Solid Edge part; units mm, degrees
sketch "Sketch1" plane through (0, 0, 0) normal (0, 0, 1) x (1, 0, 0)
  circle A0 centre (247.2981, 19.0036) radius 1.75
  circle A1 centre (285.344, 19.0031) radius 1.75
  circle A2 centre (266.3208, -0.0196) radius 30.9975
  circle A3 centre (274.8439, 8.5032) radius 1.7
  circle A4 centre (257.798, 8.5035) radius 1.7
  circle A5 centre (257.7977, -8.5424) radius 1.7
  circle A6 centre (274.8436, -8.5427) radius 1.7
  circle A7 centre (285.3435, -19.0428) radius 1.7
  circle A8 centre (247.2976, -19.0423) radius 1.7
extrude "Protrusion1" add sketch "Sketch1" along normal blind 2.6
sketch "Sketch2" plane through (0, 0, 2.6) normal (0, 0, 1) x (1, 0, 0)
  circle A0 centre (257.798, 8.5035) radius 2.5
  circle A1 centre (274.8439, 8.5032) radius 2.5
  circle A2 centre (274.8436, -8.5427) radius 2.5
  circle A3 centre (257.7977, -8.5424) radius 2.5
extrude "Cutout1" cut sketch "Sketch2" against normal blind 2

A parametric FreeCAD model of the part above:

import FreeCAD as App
import Part
import Sketcher
from FreeCAD import Vector

doc = App.newDocument("Part")
body = doc.addObject("PartDesign::Body", "Body")

# Sketch on XY plane
sketch1 = body.newObject("Sketcher::SketchObject", "Sketch")
sketch1.AttachmentSupport = (doc.getObject("XY_Plane"), [""])
sketch1.MapMode = "FlatFace"
sketch1.addGeometry([
    Part.Circle(Vector(266.3, 0, 0), Vector(0, 0, 1), 31),  # 0
    Part.Circle(Vector(247.3, -19, 0), Vector(0, 0, 1), 1.7),  # 1
    Part.Circle(Vector(257.8, -8.5, 0), Vector(0, 0, 1), 1.7),  # 2
    Part.Circle(Vector(285.3, -19, 0), Vector(0, 0, 1), 1.7),  # 3
    Part.Circle(Vector(274.8, -8.5, 0), Vector(0, 0, 1), 1.7),  # 4
    Part.Circle(Vector(257.8, 8.5, 0), Vector(0, 0, 1), 1.7),  # 5
    Part.Circle(Vector(247.3, 19, 0), Vector(0, 0, 1), 1.8),  # 6
    Part.Circle(Vector(274.8, 8.5, 0), Vector(0, 0, 1), 1.7),  # 7
    Part.Circle(Vector(285.3, 19, 0), Vector(0, 0, 1), 1.8),  # 8
], False)
sketch1.addConstraint([
    Sketcher.Constraint("Equal", 1, 2),
    Sketcher.Constraint("Equal", 2, 3),
    Sketcher.Constraint("Equal", 3, 4),
    Sketcher.Constraint("Equal", 4, 5),
    Sketcher.Constraint("Equal", 5, 7),
    Sketcher.Constraint("Equal", 6, 8),
    Sketcher.Constraint("Diameter", 1, 3.4),
    Sketcher.Constraint("Diameter", 6, 3.5),
    Sketcher.Constraint("Diameter", 0, 61.995),
    Sketcher.Constraint("DistanceX", 1, 3, 2, 3, 10.5),
    Sketcher.Constraint("DistanceY", 1, 3, 2, 3, 10.5),
    Sketcher.Constraint("DistanceX", 4, 3, 3, 3, 10.5),
    Sketcher.Constraint("DistanceY", 3, 3, 4, 3, 10.5),
    Sketcher.Constraint("DistanceX", 6, 3, 5, 3, 10.5),
    Sketcher.Constraint("DistanceY", 5, 3, 6, 3, 10.5),
    Sketcher.Constraint("DistanceX", 7, 3, 8, 3, 10.5),
    Sketcher.Constraint("DistanceY", 7, 3, 8, 3, 10.5),
    Sketcher.Constraint("DistanceX", -1, 1, 5, 3, 257.798),
    Sketcher.Constraint("DistanceX", -1, 1, 7, 3, 274.844),
    Sketcher.Constraint("DistanceY", -1, 1, 8, 3, 19.003),
    Sketcher.Constraint("DistanceX", 2, 3, 0, 3, 8.523),
    Sketcher.Constraint("DistanceX", 1, 3, 3, 3, 38.046),
    Sketcher.Constraint("DistanceY", 4, 3, 0, 3, 8.523),
    Sketcher.Constraint("DistanceY", 0, 3, 5, 3, 8.523),
    Sketcher.Constraint("DistanceY", 2, 3, 5, 3, 17.046),
    Sketcher.Constraint("DistanceX", 0, 3, 7, 3, 8.523),
    Sketcher.Constraint("DistanceY", 4, 3, 7, 3, 17.046),
])
pad1 = body.newObject("PartDesign::Pad", "Pad")
pad1.Profile = sketch1
pad1.Length = 2.6

# Sketch on XY plane
sketch2 = body.newObject("Sketcher::SketchObject", "Sketch001")
sketch2.AttachmentSupport = (doc.getObject("XY_Plane"), [""])
sketch2.MapMode = "FlatFace"
sketch2.AttachmentOffset = App.Placement(Vector(0, 0, 2.6), App.Rotation())
sketch2.addGeometry([
    Part.Circle(Vector(257.8, 8.5, 0), Vector(0, 0, 1), 2.5),
    Part.Circle(Vector(274.8, 8.5, 0), Vector(0, 0, 1), 2.5),
    Part.Circle(Vector(274.8, -8.5, 0), Vector(0, 0, 1), 2.5),
    Part.Circle(Vector(257.8, -8.5, 0), Vector(0, 0, 1), 2.5),
], False)
sketch2.addConstraint([
    Sketcher.Constraint("Equal", 0, 1),
    Sketcher.Constraint("Equal", 1, 2),
    Sketcher.Constraint("Equal", 2, 3),
    Sketcher.Constraint("Diameter", 0, 5.0),
    Sketcher.Constraint("DistanceX", -1, 1, 0, 3, 257.798),
    Sketcher.Constraint("DistanceX", -1, 1, 1, 3, 274.844),
    Sketcher.Constraint("DistanceY", 2, 3, 1, 3, 17.046),
    Sketcher.Constraint("DistanceX", 3, 3, 2, 3, 17.046),
    Sketcher.Constraint("DistanceY", 3, 3, 0, 3, 17.046),
    Sketcher.Constraint("DistanceY", -1, 1, 0, 3, 8.5035),
    Sketcher.Constraint("DistanceY", -1, 1, 1, 3, 8.5032),
    Sketcher.Constraint("DistanceX", -1, 1, 2, 3, 274.8436),
])
pocket1 = body.newObject("PartDesign::Pocket", "Pocket")
pocket1.Profile = sketch2
pocket1.Length = 2

doc.recompute()
